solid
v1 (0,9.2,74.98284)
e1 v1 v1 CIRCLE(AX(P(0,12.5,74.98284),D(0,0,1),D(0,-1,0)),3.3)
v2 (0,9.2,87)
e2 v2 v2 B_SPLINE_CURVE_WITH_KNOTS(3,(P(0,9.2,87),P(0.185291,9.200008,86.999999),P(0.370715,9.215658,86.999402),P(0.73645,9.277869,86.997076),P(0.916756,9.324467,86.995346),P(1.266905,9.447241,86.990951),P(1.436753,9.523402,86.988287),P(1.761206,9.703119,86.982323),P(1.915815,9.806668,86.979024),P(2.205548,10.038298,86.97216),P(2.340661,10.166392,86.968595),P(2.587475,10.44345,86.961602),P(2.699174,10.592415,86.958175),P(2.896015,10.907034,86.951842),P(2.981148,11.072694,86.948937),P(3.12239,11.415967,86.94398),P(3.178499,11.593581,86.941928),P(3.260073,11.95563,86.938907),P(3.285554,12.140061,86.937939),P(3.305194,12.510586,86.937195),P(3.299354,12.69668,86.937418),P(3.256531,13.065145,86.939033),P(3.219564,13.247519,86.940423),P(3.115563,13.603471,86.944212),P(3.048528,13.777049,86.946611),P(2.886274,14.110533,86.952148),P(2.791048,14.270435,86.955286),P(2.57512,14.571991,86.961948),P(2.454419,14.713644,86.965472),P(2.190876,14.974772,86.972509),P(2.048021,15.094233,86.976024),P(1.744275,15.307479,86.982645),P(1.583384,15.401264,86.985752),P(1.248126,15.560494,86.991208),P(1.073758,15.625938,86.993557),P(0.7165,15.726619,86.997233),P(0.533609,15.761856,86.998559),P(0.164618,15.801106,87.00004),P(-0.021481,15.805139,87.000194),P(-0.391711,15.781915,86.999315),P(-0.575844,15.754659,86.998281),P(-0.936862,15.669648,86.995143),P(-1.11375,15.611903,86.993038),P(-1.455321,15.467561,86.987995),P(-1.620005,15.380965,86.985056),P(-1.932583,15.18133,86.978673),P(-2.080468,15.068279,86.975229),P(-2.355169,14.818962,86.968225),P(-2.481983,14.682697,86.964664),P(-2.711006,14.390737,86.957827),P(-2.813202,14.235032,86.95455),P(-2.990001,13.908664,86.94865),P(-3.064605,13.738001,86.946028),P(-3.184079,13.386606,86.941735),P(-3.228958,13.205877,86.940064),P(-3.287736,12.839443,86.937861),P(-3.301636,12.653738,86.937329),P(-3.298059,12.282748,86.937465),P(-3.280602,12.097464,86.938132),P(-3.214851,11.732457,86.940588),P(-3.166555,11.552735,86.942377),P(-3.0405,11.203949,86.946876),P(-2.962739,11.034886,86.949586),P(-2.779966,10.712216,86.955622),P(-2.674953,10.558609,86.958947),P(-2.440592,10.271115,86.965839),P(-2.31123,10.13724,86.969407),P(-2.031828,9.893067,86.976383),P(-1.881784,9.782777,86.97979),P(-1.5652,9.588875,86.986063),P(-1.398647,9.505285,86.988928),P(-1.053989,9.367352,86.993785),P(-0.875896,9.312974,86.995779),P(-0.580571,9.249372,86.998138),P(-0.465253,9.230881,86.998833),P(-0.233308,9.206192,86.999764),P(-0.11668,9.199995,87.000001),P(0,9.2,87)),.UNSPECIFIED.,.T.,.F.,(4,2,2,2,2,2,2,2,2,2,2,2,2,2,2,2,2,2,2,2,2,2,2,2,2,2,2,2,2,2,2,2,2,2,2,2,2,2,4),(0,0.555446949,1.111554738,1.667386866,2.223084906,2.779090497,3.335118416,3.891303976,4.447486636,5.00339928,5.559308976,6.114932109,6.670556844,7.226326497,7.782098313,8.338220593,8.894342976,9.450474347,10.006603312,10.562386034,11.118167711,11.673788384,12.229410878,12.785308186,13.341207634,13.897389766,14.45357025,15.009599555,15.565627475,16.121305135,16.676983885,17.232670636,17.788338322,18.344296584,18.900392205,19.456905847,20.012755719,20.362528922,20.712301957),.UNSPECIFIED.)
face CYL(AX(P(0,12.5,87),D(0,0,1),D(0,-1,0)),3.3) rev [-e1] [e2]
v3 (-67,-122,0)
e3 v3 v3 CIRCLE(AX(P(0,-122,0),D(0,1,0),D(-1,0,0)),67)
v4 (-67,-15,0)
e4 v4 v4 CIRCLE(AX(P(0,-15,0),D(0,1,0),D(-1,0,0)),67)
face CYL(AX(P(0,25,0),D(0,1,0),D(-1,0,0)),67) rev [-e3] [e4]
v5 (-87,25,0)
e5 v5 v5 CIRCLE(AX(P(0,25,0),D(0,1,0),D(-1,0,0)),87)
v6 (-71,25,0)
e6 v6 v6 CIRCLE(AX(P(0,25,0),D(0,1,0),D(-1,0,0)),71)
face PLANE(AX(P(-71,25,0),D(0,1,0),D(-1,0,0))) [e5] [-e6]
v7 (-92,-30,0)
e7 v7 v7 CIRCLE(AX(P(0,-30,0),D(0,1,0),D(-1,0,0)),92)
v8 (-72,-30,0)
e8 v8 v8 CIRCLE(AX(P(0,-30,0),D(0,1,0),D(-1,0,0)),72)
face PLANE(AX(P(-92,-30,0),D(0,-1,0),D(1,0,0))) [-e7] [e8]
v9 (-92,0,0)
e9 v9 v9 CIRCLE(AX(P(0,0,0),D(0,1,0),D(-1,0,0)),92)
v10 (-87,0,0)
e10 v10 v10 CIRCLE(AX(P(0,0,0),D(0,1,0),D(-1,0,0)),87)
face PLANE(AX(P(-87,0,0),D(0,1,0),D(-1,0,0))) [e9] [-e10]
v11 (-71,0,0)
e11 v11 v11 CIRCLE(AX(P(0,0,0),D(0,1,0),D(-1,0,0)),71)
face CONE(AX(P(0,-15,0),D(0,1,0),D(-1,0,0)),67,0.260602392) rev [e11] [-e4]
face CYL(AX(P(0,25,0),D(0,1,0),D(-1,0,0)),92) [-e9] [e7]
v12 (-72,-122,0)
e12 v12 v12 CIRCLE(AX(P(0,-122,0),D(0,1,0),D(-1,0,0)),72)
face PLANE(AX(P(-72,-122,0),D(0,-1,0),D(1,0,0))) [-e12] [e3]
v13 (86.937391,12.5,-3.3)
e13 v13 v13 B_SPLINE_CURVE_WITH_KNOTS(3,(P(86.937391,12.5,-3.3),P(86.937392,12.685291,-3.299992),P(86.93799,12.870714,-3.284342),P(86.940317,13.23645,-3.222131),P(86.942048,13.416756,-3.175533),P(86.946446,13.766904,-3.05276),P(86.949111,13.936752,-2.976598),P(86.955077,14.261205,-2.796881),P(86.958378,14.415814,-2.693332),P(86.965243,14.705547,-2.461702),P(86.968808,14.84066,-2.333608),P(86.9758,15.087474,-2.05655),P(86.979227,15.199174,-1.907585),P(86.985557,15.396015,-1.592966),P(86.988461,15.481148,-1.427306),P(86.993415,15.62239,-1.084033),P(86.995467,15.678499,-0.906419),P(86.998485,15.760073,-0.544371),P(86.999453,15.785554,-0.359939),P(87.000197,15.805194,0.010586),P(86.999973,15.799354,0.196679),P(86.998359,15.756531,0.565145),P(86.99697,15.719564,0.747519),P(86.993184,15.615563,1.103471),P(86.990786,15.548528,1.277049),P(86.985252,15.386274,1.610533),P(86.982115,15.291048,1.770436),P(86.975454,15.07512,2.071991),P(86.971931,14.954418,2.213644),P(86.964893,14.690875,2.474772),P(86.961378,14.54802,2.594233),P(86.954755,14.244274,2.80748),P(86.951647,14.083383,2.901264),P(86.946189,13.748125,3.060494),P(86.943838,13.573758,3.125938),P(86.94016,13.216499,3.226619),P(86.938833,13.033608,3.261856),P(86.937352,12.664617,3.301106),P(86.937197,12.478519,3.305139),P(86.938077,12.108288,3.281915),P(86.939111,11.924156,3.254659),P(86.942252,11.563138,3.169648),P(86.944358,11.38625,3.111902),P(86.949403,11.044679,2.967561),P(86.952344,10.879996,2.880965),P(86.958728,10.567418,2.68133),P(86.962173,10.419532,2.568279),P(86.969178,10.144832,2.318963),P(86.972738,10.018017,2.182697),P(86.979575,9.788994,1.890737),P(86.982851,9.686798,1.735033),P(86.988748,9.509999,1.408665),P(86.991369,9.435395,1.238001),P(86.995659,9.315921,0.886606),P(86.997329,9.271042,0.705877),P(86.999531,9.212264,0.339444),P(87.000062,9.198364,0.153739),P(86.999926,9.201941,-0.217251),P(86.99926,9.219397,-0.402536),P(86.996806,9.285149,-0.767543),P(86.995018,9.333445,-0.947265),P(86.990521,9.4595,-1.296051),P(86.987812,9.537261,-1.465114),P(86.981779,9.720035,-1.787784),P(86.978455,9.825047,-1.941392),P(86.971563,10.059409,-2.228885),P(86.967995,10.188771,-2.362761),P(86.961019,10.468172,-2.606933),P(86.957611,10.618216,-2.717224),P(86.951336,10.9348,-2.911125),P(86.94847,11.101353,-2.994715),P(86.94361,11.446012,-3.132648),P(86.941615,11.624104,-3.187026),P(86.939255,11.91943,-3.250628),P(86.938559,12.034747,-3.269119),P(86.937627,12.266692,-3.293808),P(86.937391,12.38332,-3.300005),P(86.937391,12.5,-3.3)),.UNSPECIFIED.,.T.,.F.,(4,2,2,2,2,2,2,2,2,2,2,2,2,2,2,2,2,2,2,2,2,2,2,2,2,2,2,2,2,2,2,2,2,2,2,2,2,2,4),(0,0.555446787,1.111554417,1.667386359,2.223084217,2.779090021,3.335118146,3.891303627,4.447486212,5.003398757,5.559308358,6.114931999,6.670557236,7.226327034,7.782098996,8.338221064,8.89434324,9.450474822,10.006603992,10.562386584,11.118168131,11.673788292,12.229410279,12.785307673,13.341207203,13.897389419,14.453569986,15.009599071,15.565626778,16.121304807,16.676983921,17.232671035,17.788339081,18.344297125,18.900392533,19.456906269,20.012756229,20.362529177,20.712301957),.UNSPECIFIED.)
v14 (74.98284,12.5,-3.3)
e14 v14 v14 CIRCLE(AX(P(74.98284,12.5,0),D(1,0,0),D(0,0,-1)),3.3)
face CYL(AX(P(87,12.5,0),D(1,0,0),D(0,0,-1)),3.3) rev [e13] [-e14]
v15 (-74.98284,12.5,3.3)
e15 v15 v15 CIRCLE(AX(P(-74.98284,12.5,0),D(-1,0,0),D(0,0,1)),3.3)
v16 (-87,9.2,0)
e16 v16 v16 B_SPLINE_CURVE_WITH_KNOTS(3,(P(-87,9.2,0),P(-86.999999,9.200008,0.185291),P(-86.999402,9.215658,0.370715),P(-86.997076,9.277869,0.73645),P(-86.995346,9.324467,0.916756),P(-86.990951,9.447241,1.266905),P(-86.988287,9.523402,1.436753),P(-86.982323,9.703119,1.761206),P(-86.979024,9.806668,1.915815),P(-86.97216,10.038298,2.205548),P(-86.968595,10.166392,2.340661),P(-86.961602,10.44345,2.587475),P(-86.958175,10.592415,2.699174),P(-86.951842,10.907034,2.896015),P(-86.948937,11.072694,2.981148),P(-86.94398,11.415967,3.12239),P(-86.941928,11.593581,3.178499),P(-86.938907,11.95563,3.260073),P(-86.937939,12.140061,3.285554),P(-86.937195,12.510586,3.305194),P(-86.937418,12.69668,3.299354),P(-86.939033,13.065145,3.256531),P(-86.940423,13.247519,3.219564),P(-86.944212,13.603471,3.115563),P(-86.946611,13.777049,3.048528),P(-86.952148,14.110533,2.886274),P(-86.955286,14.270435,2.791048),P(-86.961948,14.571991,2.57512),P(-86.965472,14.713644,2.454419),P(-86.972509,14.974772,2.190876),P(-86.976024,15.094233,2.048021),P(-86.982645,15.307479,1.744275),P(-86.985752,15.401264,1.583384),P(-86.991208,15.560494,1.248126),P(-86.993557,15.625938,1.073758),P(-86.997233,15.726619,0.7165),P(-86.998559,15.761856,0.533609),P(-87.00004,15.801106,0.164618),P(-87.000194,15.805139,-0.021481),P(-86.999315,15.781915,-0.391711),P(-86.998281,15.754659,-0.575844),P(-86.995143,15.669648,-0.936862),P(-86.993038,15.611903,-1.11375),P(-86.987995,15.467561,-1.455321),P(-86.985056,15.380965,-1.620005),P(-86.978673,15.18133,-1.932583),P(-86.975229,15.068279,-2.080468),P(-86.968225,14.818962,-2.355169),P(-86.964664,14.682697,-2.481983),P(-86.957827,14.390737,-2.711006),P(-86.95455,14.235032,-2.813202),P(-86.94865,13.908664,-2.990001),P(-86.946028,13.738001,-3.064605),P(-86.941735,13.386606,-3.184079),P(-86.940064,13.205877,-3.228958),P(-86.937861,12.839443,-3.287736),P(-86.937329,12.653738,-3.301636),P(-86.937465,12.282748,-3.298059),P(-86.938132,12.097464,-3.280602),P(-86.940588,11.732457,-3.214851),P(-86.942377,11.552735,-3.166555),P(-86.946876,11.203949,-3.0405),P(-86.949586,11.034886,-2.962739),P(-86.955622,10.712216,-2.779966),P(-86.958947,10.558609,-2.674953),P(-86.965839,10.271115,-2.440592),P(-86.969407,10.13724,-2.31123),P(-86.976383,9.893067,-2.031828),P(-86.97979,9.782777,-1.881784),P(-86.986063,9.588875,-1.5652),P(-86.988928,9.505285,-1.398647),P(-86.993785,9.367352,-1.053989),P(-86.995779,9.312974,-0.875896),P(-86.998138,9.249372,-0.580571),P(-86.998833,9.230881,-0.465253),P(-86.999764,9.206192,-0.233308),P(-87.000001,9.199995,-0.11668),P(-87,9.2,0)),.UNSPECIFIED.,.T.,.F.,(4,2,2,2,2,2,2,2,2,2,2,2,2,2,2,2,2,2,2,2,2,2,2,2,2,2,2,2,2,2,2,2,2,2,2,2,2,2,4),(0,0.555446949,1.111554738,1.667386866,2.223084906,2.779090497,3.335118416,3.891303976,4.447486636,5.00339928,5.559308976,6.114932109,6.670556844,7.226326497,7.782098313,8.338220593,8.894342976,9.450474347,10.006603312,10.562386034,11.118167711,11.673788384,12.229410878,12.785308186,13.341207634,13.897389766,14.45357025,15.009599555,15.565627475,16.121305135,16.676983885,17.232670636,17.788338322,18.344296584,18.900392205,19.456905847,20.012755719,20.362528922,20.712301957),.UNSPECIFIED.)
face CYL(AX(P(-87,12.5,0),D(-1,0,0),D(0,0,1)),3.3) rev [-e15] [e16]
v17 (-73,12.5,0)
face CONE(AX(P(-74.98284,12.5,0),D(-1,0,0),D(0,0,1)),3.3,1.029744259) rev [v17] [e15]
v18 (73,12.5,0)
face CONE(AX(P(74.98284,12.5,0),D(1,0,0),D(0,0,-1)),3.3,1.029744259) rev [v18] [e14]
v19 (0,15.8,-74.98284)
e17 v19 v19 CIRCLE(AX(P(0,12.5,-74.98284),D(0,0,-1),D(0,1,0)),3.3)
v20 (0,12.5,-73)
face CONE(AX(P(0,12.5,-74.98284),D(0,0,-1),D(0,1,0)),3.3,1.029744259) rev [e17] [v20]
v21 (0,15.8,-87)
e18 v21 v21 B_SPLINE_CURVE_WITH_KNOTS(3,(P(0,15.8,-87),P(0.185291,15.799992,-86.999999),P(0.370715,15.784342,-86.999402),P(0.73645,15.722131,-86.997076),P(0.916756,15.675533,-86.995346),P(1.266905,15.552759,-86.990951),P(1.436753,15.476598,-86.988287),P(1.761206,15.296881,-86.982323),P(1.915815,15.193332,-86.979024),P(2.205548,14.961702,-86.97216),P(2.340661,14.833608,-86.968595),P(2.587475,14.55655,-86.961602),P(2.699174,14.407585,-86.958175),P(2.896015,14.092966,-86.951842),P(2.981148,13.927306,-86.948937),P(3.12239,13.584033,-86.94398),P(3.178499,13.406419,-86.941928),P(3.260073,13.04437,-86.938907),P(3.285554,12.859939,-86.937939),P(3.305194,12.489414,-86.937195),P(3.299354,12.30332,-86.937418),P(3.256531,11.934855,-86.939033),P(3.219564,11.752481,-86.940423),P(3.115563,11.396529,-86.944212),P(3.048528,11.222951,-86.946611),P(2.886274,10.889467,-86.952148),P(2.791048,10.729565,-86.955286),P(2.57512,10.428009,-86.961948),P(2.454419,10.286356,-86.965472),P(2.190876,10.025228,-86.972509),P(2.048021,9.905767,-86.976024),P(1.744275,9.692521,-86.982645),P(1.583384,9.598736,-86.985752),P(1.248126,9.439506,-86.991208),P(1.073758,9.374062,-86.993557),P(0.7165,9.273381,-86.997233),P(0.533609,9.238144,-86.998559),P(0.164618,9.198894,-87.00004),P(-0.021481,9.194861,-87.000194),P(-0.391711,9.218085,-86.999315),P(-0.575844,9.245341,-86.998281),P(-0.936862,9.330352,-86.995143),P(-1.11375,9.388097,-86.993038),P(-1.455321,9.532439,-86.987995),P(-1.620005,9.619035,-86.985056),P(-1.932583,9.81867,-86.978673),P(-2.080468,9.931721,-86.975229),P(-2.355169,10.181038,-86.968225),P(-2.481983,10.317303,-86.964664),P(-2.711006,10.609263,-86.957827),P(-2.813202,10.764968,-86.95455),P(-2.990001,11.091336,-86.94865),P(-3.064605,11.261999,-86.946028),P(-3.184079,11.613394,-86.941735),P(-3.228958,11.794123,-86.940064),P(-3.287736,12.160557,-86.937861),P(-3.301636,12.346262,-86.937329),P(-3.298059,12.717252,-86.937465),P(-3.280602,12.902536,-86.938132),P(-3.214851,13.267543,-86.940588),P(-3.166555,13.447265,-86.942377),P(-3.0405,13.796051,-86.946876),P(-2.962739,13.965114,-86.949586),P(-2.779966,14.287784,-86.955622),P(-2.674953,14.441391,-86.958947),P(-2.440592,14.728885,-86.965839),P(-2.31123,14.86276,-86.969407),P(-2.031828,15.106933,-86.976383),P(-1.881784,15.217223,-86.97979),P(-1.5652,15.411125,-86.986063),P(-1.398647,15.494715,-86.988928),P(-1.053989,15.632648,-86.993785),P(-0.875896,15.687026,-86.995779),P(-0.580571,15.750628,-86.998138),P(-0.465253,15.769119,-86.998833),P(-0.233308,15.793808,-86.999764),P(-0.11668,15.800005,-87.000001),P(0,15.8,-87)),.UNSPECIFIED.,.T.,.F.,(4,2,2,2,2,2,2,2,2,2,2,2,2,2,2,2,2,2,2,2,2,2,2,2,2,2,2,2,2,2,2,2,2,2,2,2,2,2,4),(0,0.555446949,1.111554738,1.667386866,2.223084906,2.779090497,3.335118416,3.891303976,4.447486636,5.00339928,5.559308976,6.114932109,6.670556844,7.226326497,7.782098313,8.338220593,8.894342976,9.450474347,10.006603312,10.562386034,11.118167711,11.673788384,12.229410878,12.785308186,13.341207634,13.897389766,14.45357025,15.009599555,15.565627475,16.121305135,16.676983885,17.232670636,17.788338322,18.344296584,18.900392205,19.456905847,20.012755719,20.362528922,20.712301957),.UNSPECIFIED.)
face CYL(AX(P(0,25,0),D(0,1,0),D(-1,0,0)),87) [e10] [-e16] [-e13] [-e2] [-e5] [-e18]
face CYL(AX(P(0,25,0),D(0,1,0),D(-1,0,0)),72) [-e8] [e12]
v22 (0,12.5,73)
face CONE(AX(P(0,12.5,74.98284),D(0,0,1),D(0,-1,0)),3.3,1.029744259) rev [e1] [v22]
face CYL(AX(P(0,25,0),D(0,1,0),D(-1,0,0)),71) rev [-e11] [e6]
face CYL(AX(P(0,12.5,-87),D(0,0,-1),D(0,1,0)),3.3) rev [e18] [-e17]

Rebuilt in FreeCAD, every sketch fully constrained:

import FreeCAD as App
import Part
import Sketcher
from FreeCAD import Vector
Q = App.Units.Quantity

doc = App.newDocument("Part")
body = doc.addObject("PartDesign::Body", "Body")

# Sketch on XY plane
sketch1 = body.newObject("Sketcher::SketchObject", "Sketch")
sketch1.AttachmentSupport = (doc.getObject("XY_Plane"), [""])
sketch1.MapMode = "FlatFace"
sketch1.addGeometry([
    Part.LineSegment(Vector(-71, 0, 0), Vector(-71, 25, 0)),  # 0
    Part.LineSegment(Vector(-71, 25, 0), Vector(-87, 25, 0)),  # 1
    Part.LineSegment(Vector(-87, 25, 0), Vector(-87, 0, 0)),  # 2
    Part.LineSegment(Vector(-87, 0, 0), Vector(-92, 0, 0)),  # 3
    Part.LineSegment(Vector(-92, 0, 0), Vector(-92, -30, 0)),  # 4
    Part.LineSegment(Vector(-92, -30, 0), Vector(-72, -30, 0)),  # 5
    Part.LineSegment(Vector(-72, -30, 0), Vector(-72, -122, 0)),  # 6
    Part.LineSegment(Vector(-72, -122, 0), Vector(-67, -122, 0)),  # 7
    Part.LineSegment(Vector(-67, -122, 0), Vector(-67, -15, 0)),  # 8
    Part.LineSegment(Vector(-67, -15, 0), Vector(-71, 0, 0)),  # 9
], False)
sketch1.addConstraint([
    Sketcher.Constraint("Coincident", 0, 2, 1, 1),
    Sketcher.Constraint("Coincident", 1, 2, 2, 1),
    Sketcher.Constraint("Coincident", 2, 2, 3, 1),
    Sketcher.Constraint("Coincident", 3, 2, 4, 1),
    Sketcher.Constraint("Coincident", 4, 2, 5, 1),
    Sketcher.Constraint("Coincident", 5, 2, 6, 1),
    Sketcher.Constraint("Coincident", 6, 2, 7, 1),
    Sketcher.Constraint("Coincident", 7, 2, 8, 1),
    Sketcher.Constraint("Coincident", 8, 2, 9, 1),
    Sketcher.Constraint("Coincident", 9, 2, 0, 1),
    Sketcher.Constraint("Vertical", 0),
    Sketcher.Constraint("Horizontal", 1),
    Sketcher.Constraint("Vertical", 2),
    Sketcher.Constraint("Horizontal", 3),
    Sketcher.Constraint("Vertical", 4),
    Sketcher.Constraint("Horizontal", 5),
    Sketcher.Constraint("Vertical", 6),
    Sketcher.Constraint("Horizontal", 7),
    Sketcher.Constraint("Vertical", 8),
    Sketcher.Constraint("PointOnObject", 2, 2, -1),
    Sketcher.Constraint("PointOnObject", 9, 2, -1),
    Sketcher.Constraint("Equal", 3, 7),
    Sketcher.Constraint("DistanceX", 1, 2, 1, 1, 16.0),
    Sketcher.Constraint("DistanceX", 3, 2, 3, 1, 5.0),
    Sketcher.Constraint("DistanceX", 5, 1, 5, 2, 20.0),
    Sketcher.Constraint("DistanceY", 0, 1, 0, 2, 25.0),
    Sketcher.Constraint("DistanceY", 4, 2, 4, 1, 30.0),
    Sketcher.Constraint("DistanceY", 6, 2, 6, 1, 92.0),
    Sketcher.Constraint("DistanceY", 8, 1, 8, 2, 107.0),
    Sketcher.Constraint("DistanceX", 0, 2, -1, 1, 71.0),
])
revolution = body.newObject("PartDesign::Revolution", "Revolution")
revolution.Profile = sketch1
revolution.ReferenceAxis = (sketch1, ["V_Axis"])
revolution.Angle = 360

# Sketch on XZ plane
sketch2 = body.newObject("Sketcher::SketchObject", "Sketch001")
sketch2.AttachmentSupport = (doc.getObject("XZ_Plane"), [""])
sketch2.MapMode = "FlatFace"
sketch2.AttachmentOffset = App.Placement(Vector(0, 0, -12.5), App.Rotation())
sketch2.addGeometry([
    Part.LineSegment(Vector(-73, 0, 0), Vector(-87, 0, 0)),
    Part.LineSegment(Vector(-87, 0, 0), Vector(-87, 3.3, 0)),
    Part.LineSegment(Vector(-87, 3.3, 0), Vector(-74.98284, 3.3, 0)),
    Part.LineSegment(Vector(-74.98284, 3.3, 0), Vector(-73, 0, 0)),
], False)
sketch2.addConstraint([
    Sketcher.Constraint("Coincident", 0, 2, 1, 1),
    Sketcher.Constraint("Coincident", 1, 2, 2, 1),
    Sketcher.Constraint("Coincident", 2, 2, 3, 1),
    Sketcher.Constraint("Coincident", 3, 2, 0, 1),
    Sketcher.Constraint("Horizontal", 0),
    Sketcher.Constraint("Vertical", 1),
    Sketcher.Constraint("Horizontal", 2),
    Sketcher.Constraint("PointOnObject", 0, 2, -1),
    Sketcher.Constraint("DistanceX", 0, 2, 0, 1, 14.0),
    Sketcher.Constraint("Angle", 3, Q("-59 deg")),
    Sketcher.Constraint("DistanceY", 1, 1, 1, 2, 3.3),
    Sketcher.Constraint("DistanceX", 0, 2, -1, 1, 87.0),
])
groove = body.newObject("PartDesign::Groove", "Groove")
groove.Profile = sketch2
groove.ReferenceAxis = (sketch2, ["H_Axis"])
groove.Angle = 360
doc.recompute()

polarpattern = body.newObject("PartDesign::PolarPattern", "PolarPattern")
polarpattern.Originals = [groove]
polarpattern.Axis = (doc.getObject("Y_Axis"), [""])
polarpattern.Angle = 360
polarpattern.Occurrences = 4
body.Tip = polarpattern

doc.recompute()
